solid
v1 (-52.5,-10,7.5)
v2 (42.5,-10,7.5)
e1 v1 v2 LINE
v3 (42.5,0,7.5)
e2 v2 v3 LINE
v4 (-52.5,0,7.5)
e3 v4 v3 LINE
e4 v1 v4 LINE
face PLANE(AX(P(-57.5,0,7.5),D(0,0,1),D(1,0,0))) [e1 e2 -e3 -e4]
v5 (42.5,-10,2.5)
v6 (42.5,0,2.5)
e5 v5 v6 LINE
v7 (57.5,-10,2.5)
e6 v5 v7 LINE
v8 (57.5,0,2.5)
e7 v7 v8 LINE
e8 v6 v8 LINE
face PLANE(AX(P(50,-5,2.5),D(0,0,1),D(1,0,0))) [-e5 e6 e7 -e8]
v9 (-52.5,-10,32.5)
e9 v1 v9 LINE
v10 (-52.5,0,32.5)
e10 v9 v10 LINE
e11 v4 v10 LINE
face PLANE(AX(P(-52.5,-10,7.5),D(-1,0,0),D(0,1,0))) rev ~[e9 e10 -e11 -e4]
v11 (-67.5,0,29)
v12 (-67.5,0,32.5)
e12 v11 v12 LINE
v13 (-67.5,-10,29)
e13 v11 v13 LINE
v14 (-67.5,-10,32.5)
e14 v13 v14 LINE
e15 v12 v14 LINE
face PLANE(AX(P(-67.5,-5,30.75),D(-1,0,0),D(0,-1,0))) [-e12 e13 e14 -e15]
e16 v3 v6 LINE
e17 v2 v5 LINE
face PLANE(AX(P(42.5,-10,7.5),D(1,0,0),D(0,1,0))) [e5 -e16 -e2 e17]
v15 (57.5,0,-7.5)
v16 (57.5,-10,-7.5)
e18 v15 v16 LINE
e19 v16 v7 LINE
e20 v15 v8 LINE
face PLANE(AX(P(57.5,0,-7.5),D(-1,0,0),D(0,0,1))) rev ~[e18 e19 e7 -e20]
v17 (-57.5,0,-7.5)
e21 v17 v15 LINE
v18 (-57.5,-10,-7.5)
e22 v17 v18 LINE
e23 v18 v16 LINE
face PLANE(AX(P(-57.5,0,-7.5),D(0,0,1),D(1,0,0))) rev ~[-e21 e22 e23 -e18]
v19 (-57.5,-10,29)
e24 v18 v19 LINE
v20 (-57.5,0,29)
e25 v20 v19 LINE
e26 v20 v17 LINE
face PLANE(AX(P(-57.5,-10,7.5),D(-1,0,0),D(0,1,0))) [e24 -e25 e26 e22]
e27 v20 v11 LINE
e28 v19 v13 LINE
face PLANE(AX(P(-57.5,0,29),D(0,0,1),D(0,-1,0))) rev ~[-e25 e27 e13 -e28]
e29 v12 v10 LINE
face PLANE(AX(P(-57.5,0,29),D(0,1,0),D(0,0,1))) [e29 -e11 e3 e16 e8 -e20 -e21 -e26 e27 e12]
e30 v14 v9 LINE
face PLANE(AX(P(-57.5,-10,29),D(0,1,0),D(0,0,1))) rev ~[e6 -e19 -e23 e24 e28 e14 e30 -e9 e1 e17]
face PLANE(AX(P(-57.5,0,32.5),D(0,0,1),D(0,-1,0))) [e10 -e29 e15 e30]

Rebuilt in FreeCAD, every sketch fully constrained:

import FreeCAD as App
import Part
import Sketcher
from FreeCAD import Vector
Q = App.Units.Quantity

doc = App.newDocument("Part")
body = doc.addObject("PartDesign::Body", "Body")

sketch1 = body.newObject("Sketcher::SketchObject", "Sketch")
sketch1.AttachmentSupport = (doc.getObject("XZ_Plane"), [""])
sketch1.MapMode = "FlatFace"
sketch1.addGeometry([
    Part.LineSegment(Vector(-58, 8, 0), Vector(-58, -8, 0)),
    Part.LineSegment(Vector(-58, -8, 0), Vector(58, -8, 0)),
    Part.LineSegment(Vector(58, -8, 0), Vector(58, 8, 0)),
    Part.LineSegment(Vector(58, 8, 0), Vector(-58, 8, 0)),
], False)
sketch1.addConstraint([
    Sketcher.Constraint("Coincident", 0, 2, 1, 1),
    Sketcher.Constraint("Coincident", 1, 2, 2, 1),
    Sketcher.Constraint("Coincident", 2, 2, 3, 1),
    Sketcher.Constraint("Coincident", 3, 2, 0, 1),
    Sketcher.Constraint("Vertical", 0),
    Sketcher.Constraint("Horizontal", 1),
    Sketcher.Constraint("Vertical", 2),
    Sketcher.Constraint("Horizontal", 3),
    Sketcher.Constraint("Symmetric", 0, 2, 2, 2, -1, 1),
    Sketcher.Constraint("DistanceX", 1, 1, 1, 2, Q("115 mm")),
    Sketcher.Constraint("DistanceY", 0, 2, 0, 1, Q("15 mm")),
])
pad1 = body.newObject("PartDesign::Pad", "Pad")
pad1.Profile = sketch1
pad1.Length = 10

sketch2 = body.newObject("Sketcher::SketchObject", "Sketch001")
sketch2.AttachmentSupport = (doc.getObject("XY_Plane"), [""])
sketch2.MapMode = "FlatFace"
sketch2.AttachmentOffset = App.Placement(Vector(0, 0, 7.5), App.Rotation())
sketch2.addGeometry([
    Part.LineSegment(Vector(42, 0, 0), Vector(42, -10, 0)),
    Part.LineSegment(Vector(42, -10, 0), Vector(58, -10, 0)),
    Part.LineSegment(Vector(58, -10, 0), Vector(58, 0, 0)),
    Part.LineSegment(Vector(58, 0, 0), Vector(42, 0, 0)),
], False)
sketch2.addConstraint([
    Sketcher.Constraint("Coincident", 0, 2, 1, 1),
    Sketcher.Constraint("Coincident", 1, 2, 2, 1),
    Sketcher.Constraint("Coincident", 2, 2, 3, 1),
    Sketcher.Constraint("Coincident", 3, 2, 0, 1),
    Sketcher.Constraint("Vertical", 0),
    Sketcher.Constraint("Horizontal", 1),
    Sketcher.Constraint("Vertical", 2),
    Sketcher.Constraint("Horizontal", 3),
    Sketcher.Constraint("PointOnObject", 2, 2, -1),
    Sketcher.Constraint("DistanceX", 1, 1, 1, 2, Q("15 mm")),
    Sketcher.Constraint("DistanceY", 0, 2, 0, 1, Q("10 mm")),
    Sketcher.Constraint("DistanceX", -1, 1, 0, 2, Q("42.5 mm")),
])
pocket1 = body.newObject("PartDesign::Pocket", "Pocket")
pocket1.Profile = sketch2
pocket1.Length = 5

sketch3 = body.newObject("Sketcher::SketchObject", "Sketch002")
sketch3.AttachmentSupport = (doc.getObject("XY_Plane"), [""])
sketch3.MapMode = "FlatFace"
sketch3.AttachmentOffset = App.Placement(Vector(0, 0, 7.5), App.Rotation())
sketch3.addGeometry([
    Part.LineSegment(Vector(-58, 0, 0), Vector(-58, -10, 0)),
    Part.LineSegment(Vector(-58, -10, 0), Vector(-52, -10, 0)),
    Part.LineSegment(Vector(-52, -10, 0), Vector(-52, 0, 0)),
    Part.LineSegment(Vector(-52, 0, 0), Vector(-58, 0, 0)),
], False)
sketch3.addConstraint([
    Sketcher.Constraint("Coincident", 0, 2, 1, 1),
    Sketcher.Constraint("Coincident", 1, 2, 2, 1),
    Sketcher.Constraint("Coincident", 2, 2, 3, 1),
    Sketcher.Constraint("Coincident", 3, 2, 0, 1),
    Sketcher.Constraint("Vertical", 0),
    Sketcher.Constraint("Horizontal", 1),
    Sketcher.Constraint("Vertical", 2),
    Sketcher.Constraint("Horizontal", 3),
    Sketcher.Constraint("PointOnObject", 2, 2, -1),
    Sketcher.Constraint("DistanceX", 1, 1, 1, 2, Q("5 mm")),
    Sketcher.Constraint("DistanceY", 0, 2, 0, 1, Q("10 mm")),
    Sketcher.Constraint("DistanceX", 0, 2, -1, 1, Q("57.5 mm")),
])
pad2 = body.newObject("PartDesign::Pad", "Pad001")
pad2.Profile = sketch3
pad2.Length = 25

sketch4 = body.newObject("Sketcher::SketchObject", "Sketch003")
sketch4.AttachmentSupport = (doc.getObject("YZ_Plane"), [""])
sketch4.MapMode = "FlatFace"
sketch4.AttachmentOffset = App.Placement(Vector(0, 0, -57.5), App.Rotation())
sketch4.addGeometry([
    Part.LineSegment(Vector(0, 32.5, 0), Vector(0, 29, 0)),
    Part.LineSegment(Vector(0, 29, 0), Vector(-10, 29, 0)),
    Part.LineSegment(Vector(-10, 29, 0), Vector(-10, 32.5, 0)),
    Part.LineSegment(Vector(-10, 32.5, 0), Vector(0, 32.5, 0)),
], False)
sketch4.addConstraint([
    Sketcher.Constraint("Coincident", 0, 2, 1, 1),
    Sketcher.Constraint("Coincident", 1, 2, 2, 1),
    Sketcher.Constraint("Coincident", 2, 2, 3, 1),
    Sketcher.Constraint("Coincident", 3, 2, 0, 1),
    Sketcher.Constraint("Vertical", 0),
    Sketcher.Constraint("Horizontal", 1),
    Sketcher.Constraint("Vertical", 2),
    Sketcher.Constraint("Horizontal", 3),
    Sketcher.Constraint("PointOnObject", 0, 2, -2),
    Sketcher.Constraint("DistanceX", 1, 2, 1, 1, Q("10 mm")),
    Sketcher.Constraint("DistanceY", 0, 2, 0, 1, Q("3.5 mm")),
    Sketcher.Constraint("DistanceY", -1, 1, 0, 2, Q("29 mm")),
])
pad3 = body.newObject("PartDesign::Pad", "Pad002")
pad3.Profile = sketch4
pad3.Length = 10
pad3.Reversed = True

doc.recompute()
